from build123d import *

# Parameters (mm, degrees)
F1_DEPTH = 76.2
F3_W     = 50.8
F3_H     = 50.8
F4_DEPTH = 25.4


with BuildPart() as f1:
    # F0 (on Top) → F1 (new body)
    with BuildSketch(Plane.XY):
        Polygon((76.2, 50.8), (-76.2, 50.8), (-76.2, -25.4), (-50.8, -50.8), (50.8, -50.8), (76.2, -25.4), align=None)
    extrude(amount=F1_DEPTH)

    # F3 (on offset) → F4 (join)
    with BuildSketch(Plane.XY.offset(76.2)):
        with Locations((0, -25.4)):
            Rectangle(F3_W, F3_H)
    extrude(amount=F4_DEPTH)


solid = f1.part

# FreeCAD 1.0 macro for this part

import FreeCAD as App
import Part
import Sketcher
Q = App.Units.Quantity

doc = App.newDocument("Part")
body = doc.addObject("PartDesign::Body", "Body")

# Sketch on XY plane
sketch1 = body.newObject("Sketcher::SketchObject", "Sketch")
sketch1.AttachmentSupport = (doc.getObject("XY_Plane"), [""])
sketch1.MapMode = "FlatFace"
sketch1.addGeometry([
    Part.LineSegment(App.Vector(76, 51, 0), App.Vector(-76, 51, 0)),  # 0
    Part.LineSegment(App.Vector(-76, 51, 0), App.Vector(-76, -25, 0)),  # 1
    Part.LineSegment(App.Vector(-76, -25, 0), App.Vector(-51, -51, 0)),  # 2
    Part.LineSegment(App.Vector(-51, -51, 0), App.Vector(51, -51, 0)),  # 3
    Part.LineSegment(App.Vector(51, -51, 0), App.Vector(76, -25, 0)),  # 4
    Part.LineSegment(App.Vector(76, -25, 0), App.Vector(76, 51, 0)),  # 5
], False)
sketch1.addConstraint([
    Sketcher.Constraint("Coincident", 0, 2, 1, 1),
    Sketcher.Constraint("Coincident", 1, 2, 2, 1),
    Sketcher.Constraint("Coincident", 2, 2, 3, 1),
    Sketcher.Constraint("Coincident", 3, 2, 4, 1),
    Sketcher.Constraint("Coincident", 4, 2, 5, 1),
    Sketcher.Constraint("Coincident", 5, 2, 0, 1),
    Sketcher.Constraint("Horizontal", 0),
    Sketcher.Constraint("Vertical", 1),
    Sketcher.Constraint("Horizontal", 3),
    Sketcher.Constraint("Vertical", 5),
    Sketcher.Constraint("Symmetric", 1, 2, 4, 2, -2),
    Sketcher.Constraint("Perpendicular", 2, 4),
    Sketcher.Constraint("Equal", 2, 4),
    Sketcher.Constraint("DistanceX", 0, 2, 0, 1, Q("6 in")),
    Sketcher.Constraint("DistanceX", 3, 1, 3, 2, Q("4 in")),
    Sketcher.Constraint("DistanceY", 1, 2, 1, 1, Q("3 in")),
    Sketcher.Constraint("DistanceY", -1, 1, 0, 2, Q("2 in")),
])
pad1 = body.newObject("PartDesign::Pad", "Pad")
pad1.Profile = sketch1
pad1.Length = Q("3 in")

# Sketch on XY plane
sketch2 = body.newObject("Sketcher::SketchObject", "Sketch001")
sketch2.AttachmentSupport = (doc.getObject("XY_Plane"), [""])
sketch2.MapMode = "FlatFace"
sketch2.AttachmentOffset = App.Placement(App.Vector(0, 0, 3 * 25.4), App.Rotation())
sketch2.addGeometry([
    Part.LineSegment(App.Vector(-25, 0, 0), App.Vector(-25, -51, 0)),
    Part.LineSegment(App.Vector(-25, -51, 0), App.Vector(25, -51, 0)),
    Part.LineSegment(App.Vector(25, -51, 0), App.Vector(25, 0, 0)),
    Part.LineSegment(App.Vector(25, 0, 0), App.Vector(-25, 0, 0)),
], False)
sketch2.addConstraint([
    Sketcher.Constraint("Coincident", 0, 2, 1, 1),
    Sketcher.Constraint("Coincident", 1, 2, 2, 1),
    Sketcher.Constraint("Coincident", 2, 2, 3, 1),
    Sketcher.Constraint("Coincident", 3, 2, 0, 1),
    Sketcher.Constraint("Vertical", 0),
    Sketcher.Constraint("Horizontal", 1),
    Sketcher.Constraint("Vertical", 2),
    Sketcher.Constraint("Horizontal", 3),
    Sketcher.Constraint("Symmetric", 2, 2, 3, 2, -1, 1),
    Sketcher.Constraint("Equal", 3, 0),
    Sketcher.Constraint("DistanceX", 1, 1, 1, 2, Q("2 in")),
])
pad2 = body.newObject("PartDesign::Pad", "Pad001")
pad2.Profile = sketch2
pad2.Length = Q("1 in")

doc.recompute()
